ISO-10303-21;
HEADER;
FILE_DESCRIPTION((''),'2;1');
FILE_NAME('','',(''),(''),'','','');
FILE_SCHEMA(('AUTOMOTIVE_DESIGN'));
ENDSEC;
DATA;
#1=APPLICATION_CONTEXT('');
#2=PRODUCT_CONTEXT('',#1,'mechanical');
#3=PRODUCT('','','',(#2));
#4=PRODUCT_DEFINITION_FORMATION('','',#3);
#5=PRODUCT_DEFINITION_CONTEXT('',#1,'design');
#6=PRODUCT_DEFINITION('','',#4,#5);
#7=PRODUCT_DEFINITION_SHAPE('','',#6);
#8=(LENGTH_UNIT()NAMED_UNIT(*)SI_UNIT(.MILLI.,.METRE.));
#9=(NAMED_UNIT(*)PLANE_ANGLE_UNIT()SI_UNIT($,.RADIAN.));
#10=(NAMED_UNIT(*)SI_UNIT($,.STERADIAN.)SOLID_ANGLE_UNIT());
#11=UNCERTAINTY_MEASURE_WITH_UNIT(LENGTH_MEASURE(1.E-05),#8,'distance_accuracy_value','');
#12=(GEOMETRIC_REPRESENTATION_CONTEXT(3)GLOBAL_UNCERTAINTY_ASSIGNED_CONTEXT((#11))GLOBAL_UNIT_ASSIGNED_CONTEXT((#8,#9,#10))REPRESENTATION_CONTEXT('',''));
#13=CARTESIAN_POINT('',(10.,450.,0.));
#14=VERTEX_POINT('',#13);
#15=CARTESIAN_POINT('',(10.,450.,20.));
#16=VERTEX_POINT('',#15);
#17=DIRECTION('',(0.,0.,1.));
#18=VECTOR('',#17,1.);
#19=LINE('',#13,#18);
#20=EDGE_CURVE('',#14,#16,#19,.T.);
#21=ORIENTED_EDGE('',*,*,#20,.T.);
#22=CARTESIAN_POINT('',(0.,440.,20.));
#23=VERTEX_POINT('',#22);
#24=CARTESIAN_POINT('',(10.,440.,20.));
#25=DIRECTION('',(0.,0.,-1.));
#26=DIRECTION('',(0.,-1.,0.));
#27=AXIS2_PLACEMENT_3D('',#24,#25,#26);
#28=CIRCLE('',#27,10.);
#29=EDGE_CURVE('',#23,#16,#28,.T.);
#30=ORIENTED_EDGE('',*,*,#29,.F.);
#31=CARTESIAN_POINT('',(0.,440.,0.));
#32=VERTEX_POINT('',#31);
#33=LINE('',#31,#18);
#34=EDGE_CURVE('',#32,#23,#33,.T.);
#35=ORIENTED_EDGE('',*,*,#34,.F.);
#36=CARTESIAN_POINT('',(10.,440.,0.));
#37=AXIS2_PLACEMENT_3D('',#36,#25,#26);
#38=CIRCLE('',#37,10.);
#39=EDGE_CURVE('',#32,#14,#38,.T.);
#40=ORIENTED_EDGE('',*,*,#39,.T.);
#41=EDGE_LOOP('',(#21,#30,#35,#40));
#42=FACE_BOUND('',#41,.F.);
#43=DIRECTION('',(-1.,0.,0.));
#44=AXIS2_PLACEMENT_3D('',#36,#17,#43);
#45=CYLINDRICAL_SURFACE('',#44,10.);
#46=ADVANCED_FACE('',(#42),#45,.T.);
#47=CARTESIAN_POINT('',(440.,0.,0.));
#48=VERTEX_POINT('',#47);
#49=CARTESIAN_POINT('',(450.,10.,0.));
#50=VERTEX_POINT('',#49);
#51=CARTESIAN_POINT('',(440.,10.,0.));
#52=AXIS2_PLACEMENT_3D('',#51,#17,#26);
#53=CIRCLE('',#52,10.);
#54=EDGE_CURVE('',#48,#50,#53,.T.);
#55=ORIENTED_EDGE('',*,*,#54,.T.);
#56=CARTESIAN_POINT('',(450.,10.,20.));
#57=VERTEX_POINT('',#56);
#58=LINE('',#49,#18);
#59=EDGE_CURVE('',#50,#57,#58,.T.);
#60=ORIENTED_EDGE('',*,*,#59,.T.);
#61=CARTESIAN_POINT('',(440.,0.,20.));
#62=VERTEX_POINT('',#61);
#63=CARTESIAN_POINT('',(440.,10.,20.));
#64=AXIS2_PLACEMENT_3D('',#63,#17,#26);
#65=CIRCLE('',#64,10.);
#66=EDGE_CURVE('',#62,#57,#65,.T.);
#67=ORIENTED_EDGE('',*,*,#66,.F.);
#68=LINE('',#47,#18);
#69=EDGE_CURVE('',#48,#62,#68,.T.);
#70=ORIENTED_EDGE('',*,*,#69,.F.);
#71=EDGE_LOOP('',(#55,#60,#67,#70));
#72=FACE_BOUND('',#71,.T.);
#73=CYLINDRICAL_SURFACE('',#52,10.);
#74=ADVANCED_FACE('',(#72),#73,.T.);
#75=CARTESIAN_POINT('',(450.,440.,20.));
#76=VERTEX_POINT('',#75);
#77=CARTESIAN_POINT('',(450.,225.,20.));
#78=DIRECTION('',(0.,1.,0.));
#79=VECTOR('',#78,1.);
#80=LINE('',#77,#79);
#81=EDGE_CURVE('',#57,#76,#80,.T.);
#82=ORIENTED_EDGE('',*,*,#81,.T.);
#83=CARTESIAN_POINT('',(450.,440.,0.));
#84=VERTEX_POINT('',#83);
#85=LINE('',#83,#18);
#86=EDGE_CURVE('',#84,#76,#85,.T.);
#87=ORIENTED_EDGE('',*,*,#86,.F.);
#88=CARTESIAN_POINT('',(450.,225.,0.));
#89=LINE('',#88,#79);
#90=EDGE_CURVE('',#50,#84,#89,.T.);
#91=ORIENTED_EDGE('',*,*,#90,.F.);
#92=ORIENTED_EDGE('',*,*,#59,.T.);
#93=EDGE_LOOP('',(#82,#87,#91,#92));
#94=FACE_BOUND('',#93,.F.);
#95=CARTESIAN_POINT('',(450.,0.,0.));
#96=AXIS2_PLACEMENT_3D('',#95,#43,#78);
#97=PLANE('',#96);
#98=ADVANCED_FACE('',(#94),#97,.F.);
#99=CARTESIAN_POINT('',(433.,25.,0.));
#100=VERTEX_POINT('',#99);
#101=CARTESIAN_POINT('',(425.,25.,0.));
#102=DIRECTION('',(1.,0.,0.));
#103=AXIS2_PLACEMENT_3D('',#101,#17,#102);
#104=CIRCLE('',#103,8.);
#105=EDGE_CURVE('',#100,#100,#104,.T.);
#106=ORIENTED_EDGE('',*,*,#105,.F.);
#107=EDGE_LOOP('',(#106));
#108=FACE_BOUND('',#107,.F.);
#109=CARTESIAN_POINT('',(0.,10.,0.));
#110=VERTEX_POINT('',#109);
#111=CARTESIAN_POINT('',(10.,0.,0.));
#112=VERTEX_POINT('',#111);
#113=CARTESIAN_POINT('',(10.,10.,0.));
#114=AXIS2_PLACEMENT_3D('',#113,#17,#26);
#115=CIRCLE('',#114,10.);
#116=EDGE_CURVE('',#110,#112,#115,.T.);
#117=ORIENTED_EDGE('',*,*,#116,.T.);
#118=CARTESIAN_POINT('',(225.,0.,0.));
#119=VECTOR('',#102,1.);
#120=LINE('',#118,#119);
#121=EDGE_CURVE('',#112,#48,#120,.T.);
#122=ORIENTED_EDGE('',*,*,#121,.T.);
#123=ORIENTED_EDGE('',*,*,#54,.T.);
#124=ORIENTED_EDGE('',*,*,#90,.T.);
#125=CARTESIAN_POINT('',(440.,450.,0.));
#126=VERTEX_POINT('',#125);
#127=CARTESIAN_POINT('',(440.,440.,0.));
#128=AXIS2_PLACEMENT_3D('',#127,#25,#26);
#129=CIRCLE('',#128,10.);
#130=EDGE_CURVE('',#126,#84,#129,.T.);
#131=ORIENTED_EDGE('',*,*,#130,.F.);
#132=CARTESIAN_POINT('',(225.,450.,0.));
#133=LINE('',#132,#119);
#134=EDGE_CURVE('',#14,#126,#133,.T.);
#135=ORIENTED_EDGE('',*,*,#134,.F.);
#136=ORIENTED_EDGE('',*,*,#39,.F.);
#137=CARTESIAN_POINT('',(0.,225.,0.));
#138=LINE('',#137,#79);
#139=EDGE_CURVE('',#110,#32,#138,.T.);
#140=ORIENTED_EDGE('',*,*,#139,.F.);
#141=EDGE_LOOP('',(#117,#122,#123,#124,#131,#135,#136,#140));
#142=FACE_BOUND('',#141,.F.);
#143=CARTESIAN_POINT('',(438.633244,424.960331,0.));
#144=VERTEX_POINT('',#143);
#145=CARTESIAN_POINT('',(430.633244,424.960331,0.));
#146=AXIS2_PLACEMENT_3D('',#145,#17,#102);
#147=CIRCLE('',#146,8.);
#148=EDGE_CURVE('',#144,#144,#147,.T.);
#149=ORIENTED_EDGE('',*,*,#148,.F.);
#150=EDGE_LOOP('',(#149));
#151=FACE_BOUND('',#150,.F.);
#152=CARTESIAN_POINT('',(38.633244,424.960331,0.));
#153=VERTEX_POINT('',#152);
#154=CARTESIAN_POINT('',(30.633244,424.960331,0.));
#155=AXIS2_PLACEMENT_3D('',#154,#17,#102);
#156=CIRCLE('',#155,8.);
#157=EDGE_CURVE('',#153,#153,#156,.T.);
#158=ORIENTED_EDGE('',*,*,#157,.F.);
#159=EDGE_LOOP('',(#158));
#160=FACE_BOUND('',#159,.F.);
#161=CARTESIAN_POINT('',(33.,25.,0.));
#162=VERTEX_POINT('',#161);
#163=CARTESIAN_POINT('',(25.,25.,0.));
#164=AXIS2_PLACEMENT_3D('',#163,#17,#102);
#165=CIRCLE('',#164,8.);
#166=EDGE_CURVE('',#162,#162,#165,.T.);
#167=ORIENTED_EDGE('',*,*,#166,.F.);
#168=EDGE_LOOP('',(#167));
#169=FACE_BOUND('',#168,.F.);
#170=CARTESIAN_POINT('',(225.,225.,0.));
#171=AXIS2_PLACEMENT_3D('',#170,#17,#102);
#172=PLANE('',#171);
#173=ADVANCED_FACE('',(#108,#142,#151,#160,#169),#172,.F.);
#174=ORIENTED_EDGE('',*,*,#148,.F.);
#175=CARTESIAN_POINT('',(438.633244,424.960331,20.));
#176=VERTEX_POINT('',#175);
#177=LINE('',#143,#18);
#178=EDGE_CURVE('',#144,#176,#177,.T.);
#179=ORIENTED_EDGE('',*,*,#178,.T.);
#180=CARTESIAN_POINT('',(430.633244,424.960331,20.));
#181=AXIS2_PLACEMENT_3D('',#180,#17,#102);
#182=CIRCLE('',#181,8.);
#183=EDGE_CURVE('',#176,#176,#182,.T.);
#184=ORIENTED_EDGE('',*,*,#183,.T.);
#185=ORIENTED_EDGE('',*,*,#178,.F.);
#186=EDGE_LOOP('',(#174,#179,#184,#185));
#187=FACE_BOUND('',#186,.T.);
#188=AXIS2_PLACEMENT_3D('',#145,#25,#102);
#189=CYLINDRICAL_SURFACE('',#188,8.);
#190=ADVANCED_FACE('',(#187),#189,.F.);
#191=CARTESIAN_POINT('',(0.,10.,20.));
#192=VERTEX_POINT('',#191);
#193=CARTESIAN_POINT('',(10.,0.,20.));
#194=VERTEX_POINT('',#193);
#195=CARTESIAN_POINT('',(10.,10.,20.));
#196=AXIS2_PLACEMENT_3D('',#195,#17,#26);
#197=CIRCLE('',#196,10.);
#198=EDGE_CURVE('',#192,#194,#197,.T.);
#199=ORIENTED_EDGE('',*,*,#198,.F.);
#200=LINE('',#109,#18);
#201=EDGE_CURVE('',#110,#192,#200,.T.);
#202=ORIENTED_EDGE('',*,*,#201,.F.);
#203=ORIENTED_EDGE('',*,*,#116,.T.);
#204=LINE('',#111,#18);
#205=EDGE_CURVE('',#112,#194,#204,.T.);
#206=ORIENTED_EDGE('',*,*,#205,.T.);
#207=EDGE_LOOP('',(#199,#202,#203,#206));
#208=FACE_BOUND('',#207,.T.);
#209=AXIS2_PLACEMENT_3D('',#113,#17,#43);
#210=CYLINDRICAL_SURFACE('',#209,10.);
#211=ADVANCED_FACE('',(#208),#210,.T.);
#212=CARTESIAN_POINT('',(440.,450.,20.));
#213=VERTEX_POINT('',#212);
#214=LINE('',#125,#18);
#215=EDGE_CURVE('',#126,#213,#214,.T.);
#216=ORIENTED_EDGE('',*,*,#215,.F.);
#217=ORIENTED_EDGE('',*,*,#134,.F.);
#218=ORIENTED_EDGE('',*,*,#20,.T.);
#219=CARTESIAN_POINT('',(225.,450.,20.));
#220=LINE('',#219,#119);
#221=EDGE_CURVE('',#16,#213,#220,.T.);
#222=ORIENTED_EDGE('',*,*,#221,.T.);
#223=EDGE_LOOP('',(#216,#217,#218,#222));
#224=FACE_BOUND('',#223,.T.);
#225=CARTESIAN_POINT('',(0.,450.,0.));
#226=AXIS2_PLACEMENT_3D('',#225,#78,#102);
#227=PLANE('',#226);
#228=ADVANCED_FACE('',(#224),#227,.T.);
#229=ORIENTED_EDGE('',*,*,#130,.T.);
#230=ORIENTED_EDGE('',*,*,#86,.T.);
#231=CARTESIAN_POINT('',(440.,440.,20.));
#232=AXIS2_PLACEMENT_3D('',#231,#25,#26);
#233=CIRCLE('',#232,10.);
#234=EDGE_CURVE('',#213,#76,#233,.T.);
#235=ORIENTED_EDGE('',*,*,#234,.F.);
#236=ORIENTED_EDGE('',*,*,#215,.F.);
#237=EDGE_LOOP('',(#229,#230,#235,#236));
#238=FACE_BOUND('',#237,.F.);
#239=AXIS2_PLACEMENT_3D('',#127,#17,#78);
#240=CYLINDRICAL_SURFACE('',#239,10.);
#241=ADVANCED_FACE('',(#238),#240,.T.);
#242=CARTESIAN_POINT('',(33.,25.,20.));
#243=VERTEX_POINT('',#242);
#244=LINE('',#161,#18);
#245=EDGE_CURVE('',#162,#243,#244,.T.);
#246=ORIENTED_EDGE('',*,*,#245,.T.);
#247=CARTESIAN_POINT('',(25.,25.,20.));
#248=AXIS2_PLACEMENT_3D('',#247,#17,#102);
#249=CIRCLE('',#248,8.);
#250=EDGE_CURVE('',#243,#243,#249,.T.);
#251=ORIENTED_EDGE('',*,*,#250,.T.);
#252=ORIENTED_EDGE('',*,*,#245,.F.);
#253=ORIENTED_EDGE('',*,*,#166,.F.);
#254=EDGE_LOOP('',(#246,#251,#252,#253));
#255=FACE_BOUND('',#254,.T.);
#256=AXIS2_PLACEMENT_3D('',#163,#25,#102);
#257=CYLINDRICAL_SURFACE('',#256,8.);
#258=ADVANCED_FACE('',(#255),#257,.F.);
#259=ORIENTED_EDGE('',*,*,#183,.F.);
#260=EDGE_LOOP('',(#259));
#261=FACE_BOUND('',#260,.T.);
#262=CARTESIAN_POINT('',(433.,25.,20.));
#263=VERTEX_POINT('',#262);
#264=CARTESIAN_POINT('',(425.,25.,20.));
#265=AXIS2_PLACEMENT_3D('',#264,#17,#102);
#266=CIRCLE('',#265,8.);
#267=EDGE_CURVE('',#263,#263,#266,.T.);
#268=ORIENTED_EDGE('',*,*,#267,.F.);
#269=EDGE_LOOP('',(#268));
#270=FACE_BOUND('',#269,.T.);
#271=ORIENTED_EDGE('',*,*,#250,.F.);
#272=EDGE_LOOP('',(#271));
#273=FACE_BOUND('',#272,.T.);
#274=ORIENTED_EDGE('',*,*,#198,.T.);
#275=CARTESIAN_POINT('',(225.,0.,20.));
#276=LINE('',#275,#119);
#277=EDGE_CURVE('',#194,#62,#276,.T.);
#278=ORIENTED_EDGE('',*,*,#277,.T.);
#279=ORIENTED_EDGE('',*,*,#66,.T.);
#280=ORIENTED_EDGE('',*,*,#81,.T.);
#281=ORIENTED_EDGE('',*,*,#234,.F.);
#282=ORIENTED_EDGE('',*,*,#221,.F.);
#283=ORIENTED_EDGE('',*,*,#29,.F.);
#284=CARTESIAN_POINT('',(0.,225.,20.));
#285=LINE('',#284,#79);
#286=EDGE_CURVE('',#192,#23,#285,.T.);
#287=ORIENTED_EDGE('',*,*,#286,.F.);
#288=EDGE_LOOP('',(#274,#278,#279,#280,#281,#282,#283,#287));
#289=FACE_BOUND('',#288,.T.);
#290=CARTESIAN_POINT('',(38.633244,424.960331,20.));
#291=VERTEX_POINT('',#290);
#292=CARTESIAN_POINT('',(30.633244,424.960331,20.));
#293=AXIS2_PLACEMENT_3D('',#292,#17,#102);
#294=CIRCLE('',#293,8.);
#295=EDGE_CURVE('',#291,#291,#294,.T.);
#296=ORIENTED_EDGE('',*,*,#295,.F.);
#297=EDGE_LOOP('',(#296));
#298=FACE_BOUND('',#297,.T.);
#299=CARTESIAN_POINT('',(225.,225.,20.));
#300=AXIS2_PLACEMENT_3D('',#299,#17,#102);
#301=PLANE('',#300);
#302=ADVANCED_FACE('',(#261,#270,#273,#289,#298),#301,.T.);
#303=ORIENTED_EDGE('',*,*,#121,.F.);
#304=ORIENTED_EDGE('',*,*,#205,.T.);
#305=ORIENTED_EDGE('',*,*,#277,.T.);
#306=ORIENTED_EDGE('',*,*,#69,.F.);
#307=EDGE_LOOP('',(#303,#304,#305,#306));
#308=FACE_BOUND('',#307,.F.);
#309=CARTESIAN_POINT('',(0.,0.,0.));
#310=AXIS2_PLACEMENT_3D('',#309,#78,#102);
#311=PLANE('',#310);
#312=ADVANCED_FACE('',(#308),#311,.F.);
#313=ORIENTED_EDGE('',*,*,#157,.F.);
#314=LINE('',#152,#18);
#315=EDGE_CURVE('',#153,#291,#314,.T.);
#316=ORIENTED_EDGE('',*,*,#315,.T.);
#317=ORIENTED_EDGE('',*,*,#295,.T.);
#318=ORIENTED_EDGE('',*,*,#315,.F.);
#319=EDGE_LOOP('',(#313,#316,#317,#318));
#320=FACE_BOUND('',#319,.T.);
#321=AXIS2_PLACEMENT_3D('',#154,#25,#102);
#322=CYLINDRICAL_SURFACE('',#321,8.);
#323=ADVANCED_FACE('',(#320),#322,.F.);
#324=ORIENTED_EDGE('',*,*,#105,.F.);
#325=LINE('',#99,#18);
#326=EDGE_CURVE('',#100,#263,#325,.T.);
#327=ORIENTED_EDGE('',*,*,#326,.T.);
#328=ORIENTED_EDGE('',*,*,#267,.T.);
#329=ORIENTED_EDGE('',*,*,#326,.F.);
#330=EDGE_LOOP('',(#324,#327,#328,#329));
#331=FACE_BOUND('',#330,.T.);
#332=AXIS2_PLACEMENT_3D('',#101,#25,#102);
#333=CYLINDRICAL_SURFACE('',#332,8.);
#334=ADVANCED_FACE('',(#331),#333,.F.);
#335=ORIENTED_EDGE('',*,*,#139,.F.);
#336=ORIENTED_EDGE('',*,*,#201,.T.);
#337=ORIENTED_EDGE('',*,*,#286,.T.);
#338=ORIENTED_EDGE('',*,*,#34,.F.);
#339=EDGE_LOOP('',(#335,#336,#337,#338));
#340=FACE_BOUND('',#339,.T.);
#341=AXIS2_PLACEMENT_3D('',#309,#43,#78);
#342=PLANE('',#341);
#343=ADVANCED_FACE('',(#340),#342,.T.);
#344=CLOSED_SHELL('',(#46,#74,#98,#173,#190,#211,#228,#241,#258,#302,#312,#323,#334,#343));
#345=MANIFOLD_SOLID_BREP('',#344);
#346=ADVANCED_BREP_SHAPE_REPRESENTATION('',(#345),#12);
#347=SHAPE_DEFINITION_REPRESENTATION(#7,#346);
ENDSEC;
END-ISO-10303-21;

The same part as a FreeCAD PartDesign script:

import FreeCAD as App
import Part
import Sketcher
from FreeCAD import Vector
Q = App.Units.Quantity


def edges_at(feature, points):
    """Names of the edges that pass closest to the given points."""
    edges = feature.Shape.Edges
    near = lambda p: min(range(len(edges)), key=lambda i: edges[i].distToShape(Part.Vertex(*p))[0])
    return sorted({f"Edge{near(p) + 1}" for p in points})

doc = App.newDocument("Part")
params = doc.addObject("Spreadsheet::Sheet", "Params")
for row, (alias, value) in enumerate([
    ("sketch1_diameter", "16 mm"),
    ("sketch1_width", "450 mm"),
    ("pad1_length", "20 mm"),
    ("fillet_radius", "10 mm"),
], start=1):
    params.set(f"A{row}", alias)
    params.set(f"B{row}", "=" + value)
    params.setAlias(f"B{row}", alias)

body = doc.addObject("PartDesign::Body", "Body")

# Sketch on XY plane
sketch1 = body.newObject("Sketcher::SketchObject", "Sketch")
sketch1.AttachmentSupport = (doc.getObject("XY_Plane"), [""])
sketch1.MapMode = "FlatFace"
sketch1.addGeometry(Part.LineSegment(Vector(0, 450, 0), Vector(0, 0, 0)), False)
sketch1.addGeometry(Part.LineSegment(Vector(0, 0, 0), Vector(450, 0, 0)), False)
sketch1.addGeometry(Part.LineSegment(Vector(450, 0, 0), Vector(450, 450, 0)), False)
sketch1.addGeometry(Part.LineSegment(Vector(450, 450, 0), Vector(0, 450, 0)), False)
sketch1.addGeometry(Part.Circle(Vector(25, 25, 0), Vector(0, 0, 1), 8), False)
sketch1.addGeometry(Part.Circle(Vector(425, 25, 0), Vector(0, 0, 1), 8), False)
sketch1.addGeometry(Part.Circle(Vector(30.633244, 424.960331, 0), Vector(0, 0, 1), 8), False)
sketch1.addGeometry(Part.Circle(Vector(430.633244, 424.960331, 0), Vector(0, 0, 1), 8), False)
sketch1.addConstraint(Sketcher.Constraint("Coincident", 0, 2, 1, 1))
sketch1.addConstraint(Sketcher.Constraint("Coincident", 1, 2, 2, 1))
sketch1.addConstraint(Sketcher.Constraint("Coincident", 2, 2, 3, 1))
sketch1.addConstraint(Sketcher.Constraint("Coincident", 3, 2, 0, 1))
sketch1.addConstraint(Sketcher.Constraint("Vertical", 0))
sketch1.addConstraint(Sketcher.Constraint("Horizontal", 1))
sketch1.addConstraint(Sketcher.Constraint("Vertical", 2))
sketch1.addConstraint(Sketcher.Constraint("Horizontal", 3))
sketch1.addConstraint(Sketcher.Constraint("Coincident", 0, 2, -1, 1))
sketch1.addConstraint(Sketcher.Constraint("Equal", 4, 5))
sketch1.addConstraint(Sketcher.Constraint("Equal", 5, 6))
sketch1.addConstraint(Sketcher.Constraint("Equal", 6, 7))
sketch1.addConstraint(Sketcher.Constraint("Horizontal", 4, 3, 5, 3))
sketch1.addConstraint(Sketcher.Constraint("Horizontal", 6, 3, 7, 3))
sketch1.addConstraint(Sketcher.Constraint("Equal", 3, 0))
sketch1.addConstraint(Sketcher.Constraint("Diameter", 4, Q("16 mm")))
sketch1.addConstraint(Sketcher.Constraint("DistanceX", 1, 1, 1, 2, Q("450 mm")))
sketch1.addConstraint(Sketcher.Constraint("DistanceX", -1, 1, 4, 3, Q("25 mm")))
sketch1.addConstraint(Sketcher.Constraint("DistanceY", -1, 1, 4, 3, Q("25 mm")))
sketch1.addConstraint(Sketcher.Constraint("DistanceX", -1, 1, 5, 3, Q("425 mm")))
sketch1.addConstraint(Sketcher.Constraint("DistanceX", 6, 3, 7, 3, Q("400 mm")))
sketch1.addConstraint(Sketcher.Constraint("DistanceY", -1, 1, 6, 3, Q("424.960331 mm")))
sketch1.addConstraint(Sketcher.Constraint("DistanceX", -1, 1, 6, 3, Q("30.633244 mm")))
sketch1.setExpression("Constraints[15]", "Params.sketch1_diameter")
sketch1.setExpression("Constraints[16]", "Params.sketch1_width")
pad1 = body.newObject("PartDesign::Pad", "Pad")
pad1.Profile = sketch1
pad1.setExpression("Length", "Params.pad1_length")
doc.recompute()

fillet = body.newObject("PartDesign::Fillet", "Fillet")
fillet.Base = (pad1, edges_at(pad1, [
    (0, 0, 10),
    (450, 0, 10),
    (450, 450, 10),
    (0, 450, 10),
]))
fillet.setExpression("Radius", "Params.fillet_radius")

doc.recompute()
